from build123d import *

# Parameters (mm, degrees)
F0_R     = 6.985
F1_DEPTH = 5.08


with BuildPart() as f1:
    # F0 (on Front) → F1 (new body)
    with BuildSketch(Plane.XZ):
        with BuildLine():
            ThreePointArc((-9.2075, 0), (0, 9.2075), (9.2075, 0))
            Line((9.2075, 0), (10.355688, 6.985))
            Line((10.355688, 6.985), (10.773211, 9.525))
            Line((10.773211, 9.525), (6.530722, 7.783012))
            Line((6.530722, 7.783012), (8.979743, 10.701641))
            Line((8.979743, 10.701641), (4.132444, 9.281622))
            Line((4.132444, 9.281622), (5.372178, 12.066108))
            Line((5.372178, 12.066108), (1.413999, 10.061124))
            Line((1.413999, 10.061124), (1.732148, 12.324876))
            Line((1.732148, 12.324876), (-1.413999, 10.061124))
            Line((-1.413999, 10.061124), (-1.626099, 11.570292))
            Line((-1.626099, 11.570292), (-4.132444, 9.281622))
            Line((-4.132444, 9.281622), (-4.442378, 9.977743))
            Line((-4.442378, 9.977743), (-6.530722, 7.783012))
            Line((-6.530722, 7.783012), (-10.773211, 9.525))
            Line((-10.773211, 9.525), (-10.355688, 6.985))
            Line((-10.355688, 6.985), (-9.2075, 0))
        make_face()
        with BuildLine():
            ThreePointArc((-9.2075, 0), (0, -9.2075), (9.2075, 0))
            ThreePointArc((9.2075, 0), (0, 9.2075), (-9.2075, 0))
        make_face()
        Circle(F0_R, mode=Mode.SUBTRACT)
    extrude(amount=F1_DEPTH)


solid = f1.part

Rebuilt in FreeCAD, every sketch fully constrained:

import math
import FreeCAD as App
import Part
import Sketcher

V = App.Vector
Q = App.Units.Quantity

doc = App.newDocument("Part")
body = doc.addObject("PartDesign::Body", "Body")

sketch1 = body.newObject("Sketcher::SketchObject", "Sketch")
sketch1.AttachmentSupport = (doc.getObject("XZ_Plane"), [""])
sketch1.MapMode = "FlatFace"
sketch1.addGeometry(Part.LineSegment(V(9.2, 0, 0), V(10.4, 7, 0)), False)
sketch1.addGeometry(Part.LineSegment(V(10.4, 7, 0), V(10.8, 9.5, 0)), False)
sketch1.addGeometry(Part.LineSegment(V(10.8, 9.5, 0), V(6.5, 7.8, 0)), False)
sketch1.addGeometry(Part.LineSegment(V(6.5, 7.8, 0), V(9, 10.7, 0)), False)
sketch1.addGeometry(Part.LineSegment(V(9, 10.7, 0), V(4.1, 9.3, 0)), False)
sketch1.addGeometry(Part.LineSegment(V(4.1, 9.3, 0), V(5.4, 12.1, 0)), False)
sketch1.addGeometry(Part.LineSegment(V(5.4, 12.1, 0), V(1.4, 10.1, 0)), False)
sketch1.addGeometry(Part.LineSegment(V(1.4, 10.1, 0), V(1.7, 12.3, 0)), False)
sketch1.addGeometry(Part.LineSegment(V(1.7, 12.3, 0), V(-1.4, 10.1, 0)), False)
sketch1.addGeometry(Part.LineSegment(V(-1.4, 10.1, 0), V(-1.6, 11.6, 0)), False)
sketch1.addGeometry(Part.LineSegment(V(-1.6, 11.6, 0), V(-4.1, 9.3, 0)), False)
sketch1.addGeometry(Part.LineSegment(V(-4.1, 9.3, 0), V(-4.4, 10, 0)), False)
sketch1.addGeometry(Part.LineSegment(V(-4.4, 10, 0), V(-6.5, 7.8, 0)), False)
sketch1.addGeometry(Part.LineSegment(V(-6.5, 7.8, 0), V(-10.8, 9.5, 0)), False)
sketch1.addGeometry(Part.LineSegment(V(-10.8, 9.5, 0), V(-10.4, 7, 0)), False)
sketch1.addGeometry(Part.LineSegment(V(-10.4, 7, 0), V(-9.2, 0, 0)), False)
sketch1.addGeometry(Part.ArcOfCircle(Part.Circle(V(0, 0, 0), V(0, 0, 1), 9.2), math.radians(180), math.radians(360)), False)
sketch1.addGeometry(Part.Circle(V(0, 0, 0), V(0, 0, 1), 7), False)
sketch1.addConstraint(Sketcher.Constraint("Coincident", 0, 2, 1, 1))
sketch1.addConstraint(Sketcher.Constraint("Coincident", 1, 2, 2, 1))
sketch1.addConstraint(Sketcher.Constraint("Coincident", 2, 2, 3, 1))
sketch1.addConstraint(Sketcher.Constraint("Coincident", 3, 2, 4, 1))
sketch1.addConstraint(Sketcher.Constraint("Coincident", 4, 2, 5, 1))
sketch1.addConstraint(Sketcher.Constraint("Coincident", 5, 2, 6, 1))
sketch1.addConstraint(Sketcher.Constraint("Coincident", 6, 2, 7, 1))
sketch1.addConstraint(Sketcher.Constraint("Coincident", 7, 2, 8, 1))
sketch1.addConstraint(Sketcher.Constraint("Coincident", 8, 2, 9, 1))
sketch1.addConstraint(Sketcher.Constraint("Coincident", 9, 2, 10, 1))
sketch1.addConstraint(Sketcher.Constraint("Coincident", 10, 2, 11, 1))
sketch1.addConstraint(Sketcher.Constraint("Coincident", 11, 2, 12, 1))
sketch1.addConstraint(Sketcher.Constraint("Coincident", 12, 2, 13, 1))
sketch1.addConstraint(Sketcher.Constraint("Coincident", 13, 2, 14, 1))
sketch1.addConstraint(Sketcher.Constraint("Coincident", 14, 2, 15, 1))
sketch1.addConstraint(Sketcher.Constraint("Coincident", 15, 2, 16, 1))
sketch1.addConstraint(Sketcher.Constraint("Coincident", 16, 2, 0, 1))
sketch1.addConstraint(Sketcher.Constraint("Coincident", 16, 3, -1, 1))
sketch1.addConstraint(Sketcher.Constraint("Coincident", 17, 3, -1, 1))
sketch1.addConstraint(Sketcher.Constraint("Symmetric", 6, 2, 8, 2, -2))
sketch1.addConstraint(Sketcher.Constraint("Symmetric", 4, 2, 10, 2, -2))
sketch1.addConstraint(Sketcher.Constraint("Symmetric", 2, 2, 12, 2, -2))
sketch1.addConstraint(Sketcher.Constraint("Symmetric", 1, 2, 13, 2, -2))
sketch1.addConstraint(Sketcher.Constraint("Symmetric", 0, 2, 14, 2, -2))
sketch1.addConstraint(Sketcher.Constraint("PointOnObject", 15, 2, -1))
sketch1.addConstraint(Sketcher.Constraint("PointOnObject", 16, 2, -1))
sketch1.addConstraint(Sketcher.Constraint("Parallel", 0, 1))
sketch1.addConstraint(Sketcher.Constraint("Diameter", 17, Q("0.55 in")))
sketch1.addConstraint(Sketcher.Constraint("Angle", 3, Q("49.999994 deg")))
sketch1.addConstraint(Sketcher.Constraint("Angle", 5, Q("65.999984 deg")))
sketch1.addConstraint(Sketcher.Constraint("Angle", 7, Q("82.000015 deg")))
sketch1.addConstraint(Sketcher.Constraint("Angle", 9, Q("98.00001 deg")))
sketch1.addConstraint(Sketcher.Constraint("Radius", 16, Q("0.3625 in")))
sketch1.addConstraint(Sketcher.Constraint("DistanceY", 0, 2, 1, 2, Q("0.1 in")))
sketch1.addConstraint(Sketcher.Constraint("Distance", 3, Q("0.15 in")))
sketch1.addConstraint(Sketcher.Constraint("Distance", 5, Q("0.12 in")))
sketch1.addConstraint(Sketcher.Constraint("Distance", 7, Q("0.09 in")))
sketch1.addConstraint(Sketcher.Constraint("Distance", 9, Q("0.06 in")))
sketch1.addConstraint(Sketcher.Constraint("Distance", 11, Q("0.03 in")))
sketch1.addConstraint(Sketcher.Constraint("DistanceY", -1, 1, 0, 2, Q("0.275 in")))
sketch1.addConstraint(Sketcher.Constraint("DistanceX", 7, 2, 4, 2, Q("0.0944998 in")))
sketch1.addConstraint(Sketcher.Constraint("Distance", 2, Q("4.586201 mm")))
sketch1.addConstraint(Sketcher.Constraint("DistanceX", -1, 1, 6, 2, Q("1.413999 mm")))
sketch1.addConstraint(Sketcher.Constraint("DistanceX", 4, 2, 3, 2, Q("4.847299 mm")))
sketch1.addConstraint(Sketcher.Constraint("DistanceY", 4, 2, 6, 2, Q("0.779502 mm")))
sketch1.addConstraint(Sketcher.Constraint("Distance", 0, Q("7.07874 mm")))
sketch1.addConstraint(Sketcher.Constraint("DistanceY", 2, 2, 4, 2, Q("1.49861 mm")))
sketch1.addConstraint(Sketcher.Constraint("DistanceY", 10, 2, 11, 2, Q("0.696121 mm")))
pad1 = body.newObject("PartDesign::Pad", "Pad")
pad1.Profile = sketch1
pad1.Length = Q("0.2 in")

doc.recompute()
